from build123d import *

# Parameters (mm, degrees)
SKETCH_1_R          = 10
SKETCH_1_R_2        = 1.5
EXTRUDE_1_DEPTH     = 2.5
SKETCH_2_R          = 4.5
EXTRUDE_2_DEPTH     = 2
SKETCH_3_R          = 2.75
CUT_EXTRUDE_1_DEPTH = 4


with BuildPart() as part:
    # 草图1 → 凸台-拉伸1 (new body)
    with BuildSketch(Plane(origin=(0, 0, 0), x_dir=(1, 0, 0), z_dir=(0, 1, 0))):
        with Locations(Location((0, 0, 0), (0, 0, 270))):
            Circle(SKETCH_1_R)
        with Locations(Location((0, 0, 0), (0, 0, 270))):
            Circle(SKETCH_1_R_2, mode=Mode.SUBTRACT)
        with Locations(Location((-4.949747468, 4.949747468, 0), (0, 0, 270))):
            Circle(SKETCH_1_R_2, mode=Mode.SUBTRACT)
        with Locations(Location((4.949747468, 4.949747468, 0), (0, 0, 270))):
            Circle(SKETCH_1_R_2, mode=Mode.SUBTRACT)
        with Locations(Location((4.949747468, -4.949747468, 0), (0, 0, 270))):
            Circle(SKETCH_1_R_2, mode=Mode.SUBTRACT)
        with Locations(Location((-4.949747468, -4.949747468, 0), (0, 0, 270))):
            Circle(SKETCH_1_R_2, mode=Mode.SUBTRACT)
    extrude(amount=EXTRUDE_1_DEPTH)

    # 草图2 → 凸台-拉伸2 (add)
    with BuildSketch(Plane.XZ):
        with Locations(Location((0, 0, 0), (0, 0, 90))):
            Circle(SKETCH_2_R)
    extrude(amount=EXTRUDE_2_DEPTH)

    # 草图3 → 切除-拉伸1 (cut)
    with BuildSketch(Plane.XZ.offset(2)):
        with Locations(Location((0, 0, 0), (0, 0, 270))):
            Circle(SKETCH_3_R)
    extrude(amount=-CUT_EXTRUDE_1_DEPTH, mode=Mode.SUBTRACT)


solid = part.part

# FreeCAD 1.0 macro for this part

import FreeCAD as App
import Part
import Sketcher

V = App.Vector
Q = App.Units.Quantity

doc = App.newDocument("Part")
body = doc.addObject("PartDesign::Body", "Body")

# Sketch on XZ plane
sketch1 = doc.addObject("Sketcher::SketchObject", "Sketch")
body.addObject(sketch1)
sketch1.AttachmentSupport = (doc.XZ_Plane, [""])
sketch1.MapMode = "FlatFace"
sketch1.addGeometry([
    Part.Circle(V(0, 0, 0), V(0, 0, 1), 10),  # 0
    Part.Circle(V(-4.9, -4.9, 0), V(0, 0, 1), 1.5),  # 1
    Part.Circle(V(-4.9, 4.9, 0), V(0, 0, 1), 1.5),  # 2
    Part.Circle(V(0, 0, 0), V(0, 0, 1), 1.5),  # 3
    Part.Circle(V(4.9, -4.9, 0), V(0, 0, 1), 1.5),  # 4
    Part.Circle(V(4.9, 4.9, 0), V(0, 0, 1), 1.5),  # 5
], False)
sketch1.addConstraint([
    Sketcher.Constraint("Coincident", 0, 3, -1, 1),
    Sketcher.Constraint("Coincident", 3, 3, -1, 1),
    Sketcher.Constraint("Equal", 1, 2),
    Sketcher.Constraint("Equal", 2, 3),
    Sketcher.Constraint("Equal", 3, 4),
    Sketcher.Constraint("Equal", 4, 5),
    Sketcher.Constraint("Symmetric", 2, 3, 4, 3, -1, 1),
    Sketcher.Constraint("Symmetric", 1, 3, 5, 3, -1, 1),
    Sketcher.Constraint("Symmetric", 1, 3, 4, 3, -2),
    Sketcher.Constraint("Diameter", 0, Q("20 mm")),
    Sketcher.Constraint("Diameter", 1, Q("3 mm")),
    Sketcher.Constraint("DistanceX", 1, 3, -1, 1, Q("4.949747 mm")),
    Sketcher.Constraint("DistanceY", 1, 3, -1, 1, Q("4.949747 mm")),
])
pad1 = doc.addObject("PartDesign::Pad", "Pad")
body.addObject(pad1)
pad1.Profile = sketch1
pad1.Length = 2.5
pad1.Reversed = True

# Sketch on XZ plane
sketch2 = doc.addObject("Sketcher::SketchObject", "Sketch001")
body.addObject(sketch2)
sketch2.AttachmentSupport = (doc.XZ_Plane, [""])
sketch2.MapMode = "FlatFace"
sketch2.addGeometry(Part.Circle(V(0, 0, 0), V(0, 0, 1), 4.5), False)
sketch2.addConstraint([
    Sketcher.Constraint("Coincident", 0, 3, -1, 1),
    Sketcher.Constraint("Diameter", 0, Q("9 mm")),
])
pad2 = doc.addObject("PartDesign::Pad", "Pad001")
body.addObject(pad2)
pad2.Profile = sketch2
pad2.Length = 2

# Sketch on XZ plane
sketch3 = doc.addObject("Sketcher::SketchObject", "Sketch002")
body.addObject(sketch3)
sketch3.AttachmentSupport = (doc.XZ_Plane, [""])
sketch3.MapMode = "FlatFace"
sketch3.AttachmentOffset = App.Placement(V(0, 0, 2), App.Rotation())
sketch3.addGeometry(Part.Circle(V(0, 0, 0), V(0, 0, 1), 2.8), False)
sketch3.addConstraint([
    Sketcher.Constraint("Coincident", 0, 3, -1, 1),
    Sketcher.Constraint("Diameter", 0, Q("5.5 mm")),
])
pocket1 = doc.addObject("PartDesign::Pocket", "Pocket")
body.addObject(pocket1)
pocket1.Profile = sketch3
pocket1.Length = 4

doc.recompute()
